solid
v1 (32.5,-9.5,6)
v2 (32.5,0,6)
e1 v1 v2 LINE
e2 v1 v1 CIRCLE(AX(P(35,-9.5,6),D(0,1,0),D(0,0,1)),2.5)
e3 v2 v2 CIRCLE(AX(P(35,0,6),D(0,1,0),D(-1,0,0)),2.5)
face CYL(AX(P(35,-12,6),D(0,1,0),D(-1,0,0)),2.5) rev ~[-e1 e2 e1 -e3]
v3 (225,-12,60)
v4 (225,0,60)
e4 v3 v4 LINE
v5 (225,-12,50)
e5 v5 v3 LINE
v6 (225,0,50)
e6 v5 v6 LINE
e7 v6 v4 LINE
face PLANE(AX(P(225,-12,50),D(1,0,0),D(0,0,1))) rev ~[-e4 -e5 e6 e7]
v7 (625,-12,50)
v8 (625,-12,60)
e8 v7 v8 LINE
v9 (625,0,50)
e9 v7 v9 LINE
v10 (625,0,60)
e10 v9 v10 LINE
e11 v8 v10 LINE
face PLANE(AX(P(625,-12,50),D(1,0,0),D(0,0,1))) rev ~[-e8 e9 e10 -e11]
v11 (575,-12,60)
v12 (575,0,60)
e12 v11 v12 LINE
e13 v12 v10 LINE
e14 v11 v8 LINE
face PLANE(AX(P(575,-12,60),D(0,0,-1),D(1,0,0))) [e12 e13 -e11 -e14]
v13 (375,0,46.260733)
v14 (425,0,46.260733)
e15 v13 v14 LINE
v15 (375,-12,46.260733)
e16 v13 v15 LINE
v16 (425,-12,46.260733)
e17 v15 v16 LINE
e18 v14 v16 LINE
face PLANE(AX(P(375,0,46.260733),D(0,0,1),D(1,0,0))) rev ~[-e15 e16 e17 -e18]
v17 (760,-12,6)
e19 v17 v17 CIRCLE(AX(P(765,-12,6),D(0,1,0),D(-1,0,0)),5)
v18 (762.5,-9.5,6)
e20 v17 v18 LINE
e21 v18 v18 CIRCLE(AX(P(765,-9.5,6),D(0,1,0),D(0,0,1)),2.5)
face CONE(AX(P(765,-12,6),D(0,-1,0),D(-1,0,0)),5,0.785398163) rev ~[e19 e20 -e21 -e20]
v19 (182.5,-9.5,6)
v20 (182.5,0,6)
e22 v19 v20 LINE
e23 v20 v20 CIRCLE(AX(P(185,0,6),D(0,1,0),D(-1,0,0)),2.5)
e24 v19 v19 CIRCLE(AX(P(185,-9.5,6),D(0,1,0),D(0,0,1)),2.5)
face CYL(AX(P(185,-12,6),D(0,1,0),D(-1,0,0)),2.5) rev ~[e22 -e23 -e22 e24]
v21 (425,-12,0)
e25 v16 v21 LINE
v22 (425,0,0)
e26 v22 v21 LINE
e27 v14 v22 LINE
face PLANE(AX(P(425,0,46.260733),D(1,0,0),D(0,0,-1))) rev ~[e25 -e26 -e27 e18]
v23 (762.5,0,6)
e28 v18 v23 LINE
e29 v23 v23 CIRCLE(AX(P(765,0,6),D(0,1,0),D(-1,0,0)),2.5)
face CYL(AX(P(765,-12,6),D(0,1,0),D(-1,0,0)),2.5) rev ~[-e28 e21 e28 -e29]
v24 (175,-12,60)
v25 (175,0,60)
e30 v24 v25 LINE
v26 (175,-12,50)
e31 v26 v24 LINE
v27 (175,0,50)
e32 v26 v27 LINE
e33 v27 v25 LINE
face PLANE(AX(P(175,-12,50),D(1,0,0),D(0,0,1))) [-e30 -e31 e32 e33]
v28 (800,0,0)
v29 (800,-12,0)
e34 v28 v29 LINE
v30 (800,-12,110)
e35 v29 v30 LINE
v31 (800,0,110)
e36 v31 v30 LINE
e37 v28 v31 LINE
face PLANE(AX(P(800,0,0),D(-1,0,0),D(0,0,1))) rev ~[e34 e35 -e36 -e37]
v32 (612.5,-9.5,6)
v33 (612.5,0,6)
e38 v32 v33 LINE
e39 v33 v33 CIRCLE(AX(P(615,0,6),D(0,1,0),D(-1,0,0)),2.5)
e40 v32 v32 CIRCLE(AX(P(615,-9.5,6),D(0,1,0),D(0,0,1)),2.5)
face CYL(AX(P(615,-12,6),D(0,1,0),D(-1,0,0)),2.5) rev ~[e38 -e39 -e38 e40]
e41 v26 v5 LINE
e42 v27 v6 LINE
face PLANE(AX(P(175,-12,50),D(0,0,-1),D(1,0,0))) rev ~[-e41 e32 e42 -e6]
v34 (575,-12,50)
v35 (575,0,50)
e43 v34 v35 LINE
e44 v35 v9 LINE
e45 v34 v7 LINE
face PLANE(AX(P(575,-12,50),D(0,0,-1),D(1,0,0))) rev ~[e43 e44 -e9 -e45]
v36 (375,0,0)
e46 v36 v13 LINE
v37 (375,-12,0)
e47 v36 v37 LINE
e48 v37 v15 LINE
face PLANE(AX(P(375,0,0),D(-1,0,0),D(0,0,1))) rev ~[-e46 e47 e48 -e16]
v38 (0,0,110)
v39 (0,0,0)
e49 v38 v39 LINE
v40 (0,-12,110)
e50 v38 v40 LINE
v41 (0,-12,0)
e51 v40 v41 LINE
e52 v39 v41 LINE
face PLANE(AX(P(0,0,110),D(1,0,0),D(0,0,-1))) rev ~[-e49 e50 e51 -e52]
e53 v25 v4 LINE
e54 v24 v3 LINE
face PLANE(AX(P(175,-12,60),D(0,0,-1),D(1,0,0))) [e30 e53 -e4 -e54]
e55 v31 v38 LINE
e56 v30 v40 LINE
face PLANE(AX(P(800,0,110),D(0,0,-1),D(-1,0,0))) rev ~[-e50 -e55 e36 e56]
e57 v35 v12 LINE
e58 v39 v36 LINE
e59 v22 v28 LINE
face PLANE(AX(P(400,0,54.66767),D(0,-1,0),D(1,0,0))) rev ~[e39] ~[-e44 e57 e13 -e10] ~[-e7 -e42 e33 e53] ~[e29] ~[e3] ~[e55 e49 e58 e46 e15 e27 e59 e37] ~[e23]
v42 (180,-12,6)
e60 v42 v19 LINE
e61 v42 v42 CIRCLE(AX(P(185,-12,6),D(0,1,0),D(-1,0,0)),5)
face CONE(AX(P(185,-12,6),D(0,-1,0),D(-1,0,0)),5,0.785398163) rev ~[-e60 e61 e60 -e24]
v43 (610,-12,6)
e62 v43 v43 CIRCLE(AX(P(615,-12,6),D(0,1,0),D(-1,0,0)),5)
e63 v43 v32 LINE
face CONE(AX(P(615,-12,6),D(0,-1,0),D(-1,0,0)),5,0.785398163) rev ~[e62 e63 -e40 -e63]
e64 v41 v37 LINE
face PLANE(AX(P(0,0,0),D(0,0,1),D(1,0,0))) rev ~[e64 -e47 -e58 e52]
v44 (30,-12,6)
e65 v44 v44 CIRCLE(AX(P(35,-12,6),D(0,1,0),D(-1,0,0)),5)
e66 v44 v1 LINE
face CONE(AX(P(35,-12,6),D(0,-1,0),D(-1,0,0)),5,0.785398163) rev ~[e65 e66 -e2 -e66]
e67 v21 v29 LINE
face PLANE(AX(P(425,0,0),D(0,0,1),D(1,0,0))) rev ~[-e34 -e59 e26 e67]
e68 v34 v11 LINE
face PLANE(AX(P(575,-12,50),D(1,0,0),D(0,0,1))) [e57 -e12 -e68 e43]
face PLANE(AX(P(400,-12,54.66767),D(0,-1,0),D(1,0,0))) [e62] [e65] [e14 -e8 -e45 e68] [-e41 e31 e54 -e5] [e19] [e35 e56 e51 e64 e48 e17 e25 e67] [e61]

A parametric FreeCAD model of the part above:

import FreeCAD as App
import Part
import Sketcher

V = App.Vector
Q = App.Units.Quantity

doc = App.newDocument("Part")
body = doc.addObject("PartDesign::Body", "Body")

# Sketch on XZ plane
sketch1 = body.newObject("Sketcher::SketchObject", "Sketch")
sketch1.AttachmentSupport = (doc.getObject("XZ_Plane"), [""])
sketch1.MapMode = "FlatFace"
sketch1.addGeometry([
    Part.LineSegment(V(0, 110, 0), V(0, 0, 0)),  # 0
    Part.LineSegment(V(0, 0, 0), V(375, 0, 0)),  # 1
    Part.LineSegment(V(375, 0, 0), V(375, 46.260733, 0)),  # 2
    Part.LineSegment(V(375, 46.260733, 0), V(425, 46.260733, 0)),  # 3
    Part.LineSegment(V(425, 46.260733, 0), V(425, 0, 0)),  # 4
    Part.LineSegment(V(425, 0, 0), V(800, 0, 0)),  # 5
    Part.LineSegment(V(800, 0, 0), V(800, 110, 0)),  # 6
    Part.LineSegment(V(800, 110, 0), V(0, 110, 0)),  # 7
], False)
sketch1.addConstraint([
    Sketcher.Constraint("Coincident", 0, 2, 1, 1),
    Sketcher.Constraint("Coincident", 1, 2, 2, 1),
    Sketcher.Constraint("Coincident", 2, 2, 3, 1),
    Sketcher.Constraint("Coincident", 3, 2, 4, 1),
    Sketcher.Constraint("Coincident", 4, 2, 5, 1),
    Sketcher.Constraint("Coincident", 5, 2, 6, 1),
    Sketcher.Constraint("Coincident", 6, 2, 7, 1),
    Sketcher.Constraint("Coincident", 7, 2, 0, 1),
    Sketcher.Constraint("Vertical", 0),
    Sketcher.Constraint("Horizontal", 1),
    Sketcher.Constraint("Vertical", 2),
    Sketcher.Constraint("Horizontal", 3),
    Sketcher.Constraint("Vertical", 4),
    Sketcher.Constraint("Horizontal", 5),
    Sketcher.Constraint("Vertical", 6),
    Sketcher.Constraint("Horizontal", 7),
    Sketcher.Constraint("Coincident", 0, 2, -1, 1),
    Sketcher.Constraint("PointOnObject", 4, 2, -1),
    Sketcher.Constraint("Equal", 1, 5),
    Sketcher.Constraint("DistanceX", 1, 1, 1, 2, Q("375 mm")),
    Sketcher.Constraint("DistanceX", 3, 1, 3, 2, Q("50 mm")),
    Sketcher.Constraint("DistanceY", 0, 2, 0, 1, Q("110 mm")),
    Sketcher.Constraint("DistanceY", 2, 1, 2, 2, Q("46.260733 mm")),
])
pad1 = body.newObject("PartDesign::Pad", "Pad")
pad1.Profile = sketch1
pad1.Length = 12

# Sketch on XZ plane
sketch2 = body.newObject("Sketcher::SketchObject", "Sketch001")
sketch2.AttachmentSupport = (doc.getObject("XZ_Plane"), [""])
sketch2.MapMode = "FlatFace"
sketch2.AttachmentOffset = App.Placement(V(0, 0, 12), App.Rotation())
sketch2.addGeometry([
    Part.Circle(V(35, 6, 0), V(0, 0, 1), 2.5),
    Part.Circle(V(185, 6, 0), V(0, 0, 1), 2.5),
    Part.Circle(V(615, 6, 0), V(0, 0, 1), 2.5),
    Part.Circle(V(765, 6, 0), V(0, 0, 1), 2.5),
], False)
sketch2.addConstraint([
    Sketcher.Constraint("Equal", 0, 1),
    Sketcher.Constraint("Equal", 1, 2),
    Sketcher.Constraint("Equal", 2, 3),
    Sketcher.Constraint("Horizontal", 0, 3, 1, 3),
    Sketcher.Constraint("Horizontal", 1, 3, 2, 3),
    Sketcher.Constraint("Horizontal", 2, 3, 3, 3),
    Sketcher.Constraint("Diameter", 0, Q("5 mm")),
    Sketcher.Constraint("DistanceX", -1, 1, 0, 3, Q("35 mm")),
    Sketcher.Constraint("DistanceY", -1, 1, 0, 3, Q("6 mm")),
    Sketcher.Constraint("DistanceX", -1, 1, 1, 3, Q("185 mm")),
    Sketcher.Constraint("DistanceX", -1, 1, 2, 3, Q("615 mm")),
    Sketcher.Constraint("DistanceX", -1, 1, 3, 3, Q("765 mm")),
])
doc.recompute()
hole = body.newObject("PartDesign::Hole", "Hole")
hole.Profile = sketch2
hole.ThreadType = "None"
hole.Diameter = 5
hole.DepthType = "ThroughAll"
hole.HoleCutType = "Countersink"
hole.HoleCutDiameter = 10
hole.HoleCutCountersinkAngle = 90

# Sketch on XZ plane
sketch3 = body.newObject("Sketcher::SketchObject", "Sketch002")
sketch3.AttachmentSupport = (doc.getObject("XZ_Plane"), [""])
sketch3.MapMode = "FlatFace"
sketch3.AttachmentOffset = App.Placement(V(0, 0, 12), App.Rotation())
sketch3.addGeometry([
    Part.LineSegment(V(175, 60, 0), V(175, 50, 0)),  # 0
    Part.LineSegment(V(175, 50, 0), V(225, 50, 0)),  # 1
    Part.LineSegment(V(225, 50, 0), V(225, 60, 0)),  # 2
    Part.LineSegment(V(225, 60, 0), V(175, 60, 0)),  # 3
    Part.LineSegment(V(575, 60, 0), V(575, 50, 0)),  # 4
    Part.LineSegment(V(575, 50, 0), V(625, 50, 0)),  # 5
    Part.LineSegment(V(625, 50, 0), V(625, 60, 0)),  # 6
    Part.LineSegment(V(625, 60, 0), V(575, 60, 0)),  # 7
], False)
sketch3.addConstraint([
    Sketcher.Constraint("Coincident", 0, 2, 1, 1),
    Sketcher.Constraint("Coincident", 1, 2, 2, 1),
    Sketcher.Constraint("Coincident", 2, 2, 3, 1),
    Sketcher.Constraint("Coincident", 3, 2, 0, 1),
    Sketcher.Constraint("Coincident", 4, 2, 5, 1),
    Sketcher.Constraint("Coincident", 5, 2, 6, 1),
    Sketcher.Constraint("Coincident", 6, 2, 7, 1),
    Sketcher.Constraint("Coincident", 7, 2, 4, 1),
    Sketcher.Constraint("Vertical", 0),
    Sketcher.Constraint("Horizontal", 1),
    Sketcher.Constraint("Vertical", 2),
    Sketcher.Constraint("Horizontal", 3),
    Sketcher.Constraint("Vertical", 4),
    Sketcher.Constraint("Horizontal", 5),
    Sketcher.Constraint("Vertical", 6),
    Sketcher.Constraint("Horizontal", 7),
    Sketcher.Constraint("Horizontal", 1, 2, 4, 2),
    Sketcher.Constraint("Horizontal", 3, 2, 6, 2),
    Sketcher.Constraint("Equal", 3, 5),
    Sketcher.Constraint("DistanceX", 1, 1, 1, 2, Q("50 mm")),
    Sketcher.Constraint("DistanceY", 0, 2, 0, 1, Q("10 mm")),
    Sketcher.Constraint("DistanceX", -1, 1, 0, 2, Q("175 mm")),
    Sketcher.Constraint("DistanceY", -1, 1, 0, 2, Q("50 mm")),
    Sketcher.Constraint("DistanceX", -1, 1, 4, 2, Q("575 mm")),
])
pocket1 = body.newObject("PartDesign::Pocket", "Pocket")
pocket1.Profile = sketch3
pocket1.Length = 25

doc.recompute()
